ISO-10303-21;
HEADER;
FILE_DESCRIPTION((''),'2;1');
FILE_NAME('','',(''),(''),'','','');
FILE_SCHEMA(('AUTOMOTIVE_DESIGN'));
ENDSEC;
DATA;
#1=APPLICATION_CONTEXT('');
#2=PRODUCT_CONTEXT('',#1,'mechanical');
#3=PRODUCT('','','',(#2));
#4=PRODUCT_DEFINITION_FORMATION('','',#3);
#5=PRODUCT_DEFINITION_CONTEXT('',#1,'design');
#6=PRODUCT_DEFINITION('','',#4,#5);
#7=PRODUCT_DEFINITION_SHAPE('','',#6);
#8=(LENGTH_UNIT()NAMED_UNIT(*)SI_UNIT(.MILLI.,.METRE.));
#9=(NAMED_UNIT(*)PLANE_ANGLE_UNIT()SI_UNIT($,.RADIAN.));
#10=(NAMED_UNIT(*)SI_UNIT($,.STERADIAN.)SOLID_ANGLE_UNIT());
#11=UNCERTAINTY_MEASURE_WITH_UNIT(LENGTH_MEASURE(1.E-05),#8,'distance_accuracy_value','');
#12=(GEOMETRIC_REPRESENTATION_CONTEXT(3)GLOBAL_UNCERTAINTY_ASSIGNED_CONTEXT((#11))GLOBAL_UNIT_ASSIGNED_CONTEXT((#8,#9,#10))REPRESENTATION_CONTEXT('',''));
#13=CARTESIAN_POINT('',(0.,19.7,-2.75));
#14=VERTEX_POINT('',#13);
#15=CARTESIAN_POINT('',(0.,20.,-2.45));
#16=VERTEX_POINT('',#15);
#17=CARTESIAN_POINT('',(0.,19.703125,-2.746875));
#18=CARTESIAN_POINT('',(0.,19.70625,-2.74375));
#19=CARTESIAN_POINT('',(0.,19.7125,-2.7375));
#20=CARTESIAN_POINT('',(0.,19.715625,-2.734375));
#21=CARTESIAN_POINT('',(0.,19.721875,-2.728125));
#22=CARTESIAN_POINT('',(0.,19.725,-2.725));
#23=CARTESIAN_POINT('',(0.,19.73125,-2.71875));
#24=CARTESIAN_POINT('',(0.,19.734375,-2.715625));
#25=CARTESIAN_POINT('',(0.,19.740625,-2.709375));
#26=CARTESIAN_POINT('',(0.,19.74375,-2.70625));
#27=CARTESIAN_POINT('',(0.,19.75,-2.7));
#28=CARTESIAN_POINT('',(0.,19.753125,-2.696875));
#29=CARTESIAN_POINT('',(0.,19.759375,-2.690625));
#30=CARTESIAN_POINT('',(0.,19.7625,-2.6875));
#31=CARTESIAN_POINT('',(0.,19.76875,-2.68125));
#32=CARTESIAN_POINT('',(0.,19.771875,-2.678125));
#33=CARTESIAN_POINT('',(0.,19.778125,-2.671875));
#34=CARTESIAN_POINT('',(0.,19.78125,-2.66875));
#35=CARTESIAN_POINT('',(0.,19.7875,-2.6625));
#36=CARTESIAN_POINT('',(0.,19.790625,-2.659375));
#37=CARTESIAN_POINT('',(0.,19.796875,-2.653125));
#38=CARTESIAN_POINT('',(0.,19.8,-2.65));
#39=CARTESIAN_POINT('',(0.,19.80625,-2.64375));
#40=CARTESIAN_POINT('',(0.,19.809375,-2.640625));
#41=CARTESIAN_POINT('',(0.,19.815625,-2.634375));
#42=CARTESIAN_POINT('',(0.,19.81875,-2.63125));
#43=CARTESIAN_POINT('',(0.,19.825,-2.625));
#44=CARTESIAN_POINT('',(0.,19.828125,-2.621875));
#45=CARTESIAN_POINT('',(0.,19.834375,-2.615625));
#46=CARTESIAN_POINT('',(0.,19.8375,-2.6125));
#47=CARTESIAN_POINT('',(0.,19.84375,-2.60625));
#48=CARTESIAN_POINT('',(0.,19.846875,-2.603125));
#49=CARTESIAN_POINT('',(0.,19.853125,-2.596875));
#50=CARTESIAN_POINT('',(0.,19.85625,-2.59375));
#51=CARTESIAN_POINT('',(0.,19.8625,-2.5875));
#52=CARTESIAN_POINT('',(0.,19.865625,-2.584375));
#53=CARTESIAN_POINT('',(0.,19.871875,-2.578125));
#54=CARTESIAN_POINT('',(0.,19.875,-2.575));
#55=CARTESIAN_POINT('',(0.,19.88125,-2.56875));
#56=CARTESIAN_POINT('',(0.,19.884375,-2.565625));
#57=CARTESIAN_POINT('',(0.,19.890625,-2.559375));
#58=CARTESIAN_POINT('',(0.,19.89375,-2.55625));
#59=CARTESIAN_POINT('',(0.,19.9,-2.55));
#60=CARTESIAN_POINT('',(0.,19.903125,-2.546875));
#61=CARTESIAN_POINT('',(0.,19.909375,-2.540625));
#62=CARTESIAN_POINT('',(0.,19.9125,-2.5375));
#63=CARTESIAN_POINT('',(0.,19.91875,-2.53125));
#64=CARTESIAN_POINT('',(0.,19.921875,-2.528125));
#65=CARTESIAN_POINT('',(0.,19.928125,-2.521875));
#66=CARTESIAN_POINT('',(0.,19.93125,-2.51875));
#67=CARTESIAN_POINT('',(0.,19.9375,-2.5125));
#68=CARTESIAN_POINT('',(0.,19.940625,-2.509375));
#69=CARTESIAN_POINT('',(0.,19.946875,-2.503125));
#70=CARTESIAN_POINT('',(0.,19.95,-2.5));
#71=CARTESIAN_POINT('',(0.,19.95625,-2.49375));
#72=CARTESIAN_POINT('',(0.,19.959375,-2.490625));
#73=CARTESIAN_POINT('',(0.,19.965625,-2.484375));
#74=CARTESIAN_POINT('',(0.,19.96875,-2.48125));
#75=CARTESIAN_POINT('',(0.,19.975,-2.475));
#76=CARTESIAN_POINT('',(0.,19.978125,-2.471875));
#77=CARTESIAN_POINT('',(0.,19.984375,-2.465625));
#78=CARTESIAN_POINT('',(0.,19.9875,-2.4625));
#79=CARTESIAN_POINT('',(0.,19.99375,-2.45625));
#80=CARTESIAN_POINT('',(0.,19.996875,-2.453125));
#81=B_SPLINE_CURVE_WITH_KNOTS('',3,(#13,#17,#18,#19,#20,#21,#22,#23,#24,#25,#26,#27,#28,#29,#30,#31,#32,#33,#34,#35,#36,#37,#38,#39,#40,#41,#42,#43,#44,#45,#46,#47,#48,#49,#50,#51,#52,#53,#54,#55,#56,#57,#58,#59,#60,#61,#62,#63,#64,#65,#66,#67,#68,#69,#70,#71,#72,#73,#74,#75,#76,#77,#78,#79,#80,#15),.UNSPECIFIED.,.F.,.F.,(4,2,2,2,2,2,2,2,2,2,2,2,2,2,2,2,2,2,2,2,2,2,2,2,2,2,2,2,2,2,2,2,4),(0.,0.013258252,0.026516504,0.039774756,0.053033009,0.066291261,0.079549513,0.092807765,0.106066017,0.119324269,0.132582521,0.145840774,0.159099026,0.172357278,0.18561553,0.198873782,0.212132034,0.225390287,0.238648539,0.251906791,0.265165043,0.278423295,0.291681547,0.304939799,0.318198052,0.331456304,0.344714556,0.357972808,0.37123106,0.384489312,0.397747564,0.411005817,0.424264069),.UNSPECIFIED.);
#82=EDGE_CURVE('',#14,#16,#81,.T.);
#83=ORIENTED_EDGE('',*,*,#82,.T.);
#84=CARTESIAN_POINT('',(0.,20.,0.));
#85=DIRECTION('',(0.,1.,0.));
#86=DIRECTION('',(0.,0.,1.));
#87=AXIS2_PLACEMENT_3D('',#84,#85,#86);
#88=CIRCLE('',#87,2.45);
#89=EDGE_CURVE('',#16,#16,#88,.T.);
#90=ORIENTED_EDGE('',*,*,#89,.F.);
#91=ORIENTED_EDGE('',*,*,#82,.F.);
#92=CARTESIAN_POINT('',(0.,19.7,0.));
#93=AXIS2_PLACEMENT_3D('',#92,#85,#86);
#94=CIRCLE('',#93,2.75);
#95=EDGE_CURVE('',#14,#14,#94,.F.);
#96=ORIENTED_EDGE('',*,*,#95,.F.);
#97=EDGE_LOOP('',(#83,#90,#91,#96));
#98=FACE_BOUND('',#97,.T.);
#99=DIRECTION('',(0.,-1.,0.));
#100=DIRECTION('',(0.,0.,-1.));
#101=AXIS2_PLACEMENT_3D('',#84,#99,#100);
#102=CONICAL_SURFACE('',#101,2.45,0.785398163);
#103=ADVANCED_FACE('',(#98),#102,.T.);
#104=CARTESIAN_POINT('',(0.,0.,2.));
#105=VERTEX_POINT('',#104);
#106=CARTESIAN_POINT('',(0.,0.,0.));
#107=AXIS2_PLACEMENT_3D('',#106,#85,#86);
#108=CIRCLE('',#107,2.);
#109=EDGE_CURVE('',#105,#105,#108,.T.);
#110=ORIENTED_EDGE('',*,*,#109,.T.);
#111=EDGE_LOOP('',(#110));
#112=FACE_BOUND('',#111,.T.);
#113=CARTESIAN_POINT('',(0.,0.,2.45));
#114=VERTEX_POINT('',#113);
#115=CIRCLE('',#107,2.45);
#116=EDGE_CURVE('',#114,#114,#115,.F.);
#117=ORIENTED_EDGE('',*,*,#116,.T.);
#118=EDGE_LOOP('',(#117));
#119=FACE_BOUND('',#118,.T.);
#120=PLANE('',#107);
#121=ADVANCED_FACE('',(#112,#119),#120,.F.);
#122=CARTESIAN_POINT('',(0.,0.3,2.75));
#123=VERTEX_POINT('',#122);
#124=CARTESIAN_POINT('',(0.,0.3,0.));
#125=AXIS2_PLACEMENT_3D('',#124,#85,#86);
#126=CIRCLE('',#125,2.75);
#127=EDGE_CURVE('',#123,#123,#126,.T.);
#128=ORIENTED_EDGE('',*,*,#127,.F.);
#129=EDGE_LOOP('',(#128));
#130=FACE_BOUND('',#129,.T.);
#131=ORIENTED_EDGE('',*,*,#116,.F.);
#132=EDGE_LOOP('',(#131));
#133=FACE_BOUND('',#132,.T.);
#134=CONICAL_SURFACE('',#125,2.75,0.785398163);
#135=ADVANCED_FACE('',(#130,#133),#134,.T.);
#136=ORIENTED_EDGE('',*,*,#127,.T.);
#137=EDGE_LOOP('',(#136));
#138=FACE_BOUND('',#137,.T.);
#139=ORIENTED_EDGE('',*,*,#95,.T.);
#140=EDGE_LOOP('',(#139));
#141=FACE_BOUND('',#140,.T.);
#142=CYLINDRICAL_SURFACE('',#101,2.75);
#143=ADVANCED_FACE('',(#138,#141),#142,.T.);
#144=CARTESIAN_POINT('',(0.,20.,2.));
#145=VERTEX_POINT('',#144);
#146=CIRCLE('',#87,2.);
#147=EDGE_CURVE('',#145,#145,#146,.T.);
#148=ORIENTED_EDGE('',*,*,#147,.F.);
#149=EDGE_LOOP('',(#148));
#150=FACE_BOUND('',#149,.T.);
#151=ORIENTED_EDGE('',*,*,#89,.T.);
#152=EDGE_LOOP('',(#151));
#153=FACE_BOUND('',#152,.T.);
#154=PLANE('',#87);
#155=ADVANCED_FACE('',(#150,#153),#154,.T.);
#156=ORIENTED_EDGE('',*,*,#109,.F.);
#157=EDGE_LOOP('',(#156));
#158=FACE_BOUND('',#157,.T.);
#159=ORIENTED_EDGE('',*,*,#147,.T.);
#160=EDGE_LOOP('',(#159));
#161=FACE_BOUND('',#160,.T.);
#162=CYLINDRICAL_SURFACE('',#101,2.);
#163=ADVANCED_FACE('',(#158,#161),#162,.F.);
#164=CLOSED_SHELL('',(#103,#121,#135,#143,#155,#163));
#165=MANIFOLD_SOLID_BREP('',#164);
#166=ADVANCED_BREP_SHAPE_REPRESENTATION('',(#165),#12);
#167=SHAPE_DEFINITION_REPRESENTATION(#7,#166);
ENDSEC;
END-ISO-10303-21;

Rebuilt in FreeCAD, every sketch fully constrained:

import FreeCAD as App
import Part
import Sketcher


def edges_at(feature, points):
    """Names of the edges that pass closest to the given points."""
    edges = feature.Shape.Edges
    near = lambda p: min(range(len(edges)), key=lambda i: edges[i].distToShape(Part.Vertex(*p))[0])
    return sorted({f"Edge{near(p) + 1}" for p in points})

doc = App.newDocument("Part")
body = doc.addObject("PartDesign::Body", "Body")

# Sketch on XZ plane
sketch1 = body.newObject("Sketcher::SketchObject", "Sketch")
sketch1.AttachmentSupport = (doc.getObject("XZ_Plane"), [""])
sketch1.MapMode = "FlatFace"
sketch1.addGeometry([
    Part.Circle(App.Vector(0, 0, 0), App.Vector(0, 0, 1), 2.8),
    Part.Circle(App.Vector(0, 0, 0), App.Vector(0, 0, 1), 2),
], False)
sketch1.addConstraint([
    Sketcher.Constraint("Coincident", 0, 3, -1, 1),
    Sketcher.Constraint("Coincident", 1, 3, -1, 1),
    Sketcher.Constraint("Diameter", 1, 4.0),
    Sketcher.Constraint("Diameter", 0, 5.5),
])
pad1 = body.newObject("PartDesign::Pad", "Pad")
pad1.Profile = sketch1
pad1.Length = 20
pad1.Reversed = True
doc.recompute()

chamfer = body.newObject("PartDesign::Chamfer", "Chamfer")
chamfer.Base = (pad1, edges_at(pad1, [(0, 0, -2.75), (0, 20, -2.75)]))
chamfer.Size = 0.3

doc.recompute()
